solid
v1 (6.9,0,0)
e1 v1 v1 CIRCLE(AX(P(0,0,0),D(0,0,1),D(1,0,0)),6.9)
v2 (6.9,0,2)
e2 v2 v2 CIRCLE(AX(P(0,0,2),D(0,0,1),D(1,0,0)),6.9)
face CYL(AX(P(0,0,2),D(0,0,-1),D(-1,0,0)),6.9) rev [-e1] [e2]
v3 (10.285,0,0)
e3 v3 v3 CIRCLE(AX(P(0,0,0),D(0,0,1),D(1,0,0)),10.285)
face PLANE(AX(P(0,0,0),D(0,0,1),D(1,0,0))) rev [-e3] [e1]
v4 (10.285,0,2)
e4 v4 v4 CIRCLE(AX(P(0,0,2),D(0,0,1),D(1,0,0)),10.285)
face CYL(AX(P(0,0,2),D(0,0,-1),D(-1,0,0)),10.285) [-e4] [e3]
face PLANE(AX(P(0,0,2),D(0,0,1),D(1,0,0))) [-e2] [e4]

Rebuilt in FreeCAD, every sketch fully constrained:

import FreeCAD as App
import Part
import Sketcher

doc = App.newDocument("Part")
body = doc.addObject("PartDesign::Body", "Body")

# Sketch on XY plane
sketch1 = doc.addObject("Sketcher::SketchObject", "Sketch")
body.addObject(sketch1)
sketch1.AttachmentSupport = (doc.XY_Plane, [""])
sketch1.MapMode = "FlatFace"
sketch1.addGeometry(Part.Circle(App.Vector(0, 0, 0), App.Vector(0, 0, 1), 10), False)
sketch1.addGeometry(Part.Circle(App.Vector(0, 0, 0), App.Vector(0, 0, 1), 7), False)
sketch1.addConstraint(Sketcher.Constraint("Coincident", 0, 3, -1, 1))
sketch1.addConstraint(Sketcher.Constraint("Coincident", 1, 3, -1, 1))
sketch1.addConstraint(Sketcher.Constraint("Diameter", 1, 13.8))
sketch1.addConstraint(Sketcher.Constraint("Diameter", 0, 20.57))
pad1 = doc.addObject("PartDesign::Pad", "Pad")
body.addObject(pad1)
pad1.Profile = sketch1
pad1.Length = 2

doc.recompute()
